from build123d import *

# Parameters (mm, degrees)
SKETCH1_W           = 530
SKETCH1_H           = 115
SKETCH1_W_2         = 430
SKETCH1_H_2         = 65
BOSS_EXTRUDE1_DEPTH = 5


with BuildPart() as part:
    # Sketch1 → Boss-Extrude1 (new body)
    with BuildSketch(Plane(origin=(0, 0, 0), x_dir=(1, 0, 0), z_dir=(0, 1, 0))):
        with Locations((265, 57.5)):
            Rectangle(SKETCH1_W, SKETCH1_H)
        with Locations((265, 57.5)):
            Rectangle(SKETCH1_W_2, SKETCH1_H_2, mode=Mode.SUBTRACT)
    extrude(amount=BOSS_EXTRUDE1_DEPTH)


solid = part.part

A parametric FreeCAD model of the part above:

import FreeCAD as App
import Part
import Sketcher

V = App.Vector


def add_polygon(sketch, points):
    """Adds a closed chain of lines whose ends are joined by coincident constraints."""
    first, n = sketch.GeometryCount, len(points)
    for a, b in zip(points, points[1:] + points[:1]):
        sketch.addGeometry(Part.LineSegment(App.Vector(*a, 0), App.Vector(*b, 0)), False)
    for i in range(n):
        sketch.addConstraint(Sketcher.Constraint("Coincident", first + i, 2, first + (i + 1) % n, 1))

doc = App.newDocument("Part")
body = doc.addObject("PartDesign::Body", "Body")

sketch1 = body.newObject("Sketcher::SketchObject", "Sketch")
sketch1.AttachmentSupport = (doc.getObject("XZ_Plane"), [""])
sketch1.MapMode = "FlatFace"
add_polygon(sketch1, [(0, -115), (0, 0), (530, 0), (530, -115)])
add_polygon(sketch1, [(480, -25), (50, -25), (50, -90), (480, -90)])
sketch1.addConstraint([
    Sketcher.Constraint("Vertical", 0),
    Sketcher.Constraint("Horizontal", 1),
    Sketcher.Constraint("Vertical", 2),
    Sketcher.Constraint("Horizontal", 3),
    Sketcher.Constraint("Horizontal", 4),
    Sketcher.Constraint("Vertical", 5),
    Sketcher.Constraint("Horizontal", 6),
    Sketcher.Constraint("Vertical", 7),
    Sketcher.Constraint("Coincident", 0, 2, -1, 1),
    Sketcher.Constraint("DistanceX", 1, 1, 1, 2, 530.0),
    Sketcher.Constraint("DistanceX", 4, 2, 4, 1, 430.0),
    Sketcher.Constraint("DistanceY", 0, 1, 0, 2, 115.0),
    Sketcher.Constraint("DistanceY", 5, 2, 5, 1, 65.0),
    Sketcher.Constraint("DistanceX", -1, 1, 4, 2, 50.0),
    Sketcher.Constraint("DistanceY", 4, 2, -1, 1, 25.0),
])
pad1 = body.newObject("PartDesign::Pad", "Pad")
pad1.Profile = sketch1
pad1.Length = 5
pad1.Reversed = True

doc.recompute()
